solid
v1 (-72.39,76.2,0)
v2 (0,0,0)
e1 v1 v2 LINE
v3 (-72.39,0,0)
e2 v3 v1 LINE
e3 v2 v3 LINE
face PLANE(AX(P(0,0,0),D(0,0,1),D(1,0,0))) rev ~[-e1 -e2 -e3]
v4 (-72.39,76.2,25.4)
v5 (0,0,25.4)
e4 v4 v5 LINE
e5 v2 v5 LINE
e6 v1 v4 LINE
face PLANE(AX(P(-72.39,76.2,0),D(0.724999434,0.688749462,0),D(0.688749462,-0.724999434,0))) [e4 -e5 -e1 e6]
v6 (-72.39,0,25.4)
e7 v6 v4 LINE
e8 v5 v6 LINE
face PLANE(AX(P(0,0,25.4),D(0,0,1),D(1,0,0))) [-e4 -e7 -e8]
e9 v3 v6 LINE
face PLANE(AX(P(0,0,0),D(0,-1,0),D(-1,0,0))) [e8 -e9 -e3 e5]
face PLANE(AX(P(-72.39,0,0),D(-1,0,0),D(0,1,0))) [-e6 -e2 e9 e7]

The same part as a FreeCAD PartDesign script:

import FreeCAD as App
import Part
import Sketcher
from FreeCAD import Vector
Q = App.Units.Quantity

doc = App.newDocument("Part")
body = doc.addObject("PartDesign::Body", "Body")

# Sketch on XY plane
sketch1 = doc.addObject("Sketcher::SketchObject", "Sketch")
body.addObject(sketch1)
sketch1.AttachmentSupport = (doc.XY_Plane, [""])
sketch1.MapMode = "FlatFace"
sketch1.addGeometry([
    Part.LineSegment(Vector(-72, 0, 0), Vector(0, 0, 0)),
    Part.LineSegment(Vector(0, 0, 0), Vector(-72, 76, 0)),
    Part.LineSegment(Vector(-72, 76, 0), Vector(-72, 0, 0)),
], False)
sketch1.addConstraint([
    Sketcher.Constraint("Coincident", 0, 2, 1, 1),
    Sketcher.Constraint("Coincident", 1, 2, 2, 1),
    Sketcher.Constraint("Coincident", 2, 2, 0, 1),
    Sketcher.Constraint("Horizontal", 0),
    Sketcher.Constraint("Vertical", 2),
    Sketcher.Constraint("Coincident", 0, 2, -1, 1),
    Sketcher.Constraint("DistanceY", 2, 2, 2, 1, Q("3 in")),
    Sketcher.Constraint("DistanceX", 0, 1, 0, 2, Q("2.85 in")),
])
pad1 = doc.addObject("PartDesign::Pad", "Pad")
body.addObject(pad1)
pad1.Profile = sketch1
pad1.Length = Q("1 in")

doc.recompute()
